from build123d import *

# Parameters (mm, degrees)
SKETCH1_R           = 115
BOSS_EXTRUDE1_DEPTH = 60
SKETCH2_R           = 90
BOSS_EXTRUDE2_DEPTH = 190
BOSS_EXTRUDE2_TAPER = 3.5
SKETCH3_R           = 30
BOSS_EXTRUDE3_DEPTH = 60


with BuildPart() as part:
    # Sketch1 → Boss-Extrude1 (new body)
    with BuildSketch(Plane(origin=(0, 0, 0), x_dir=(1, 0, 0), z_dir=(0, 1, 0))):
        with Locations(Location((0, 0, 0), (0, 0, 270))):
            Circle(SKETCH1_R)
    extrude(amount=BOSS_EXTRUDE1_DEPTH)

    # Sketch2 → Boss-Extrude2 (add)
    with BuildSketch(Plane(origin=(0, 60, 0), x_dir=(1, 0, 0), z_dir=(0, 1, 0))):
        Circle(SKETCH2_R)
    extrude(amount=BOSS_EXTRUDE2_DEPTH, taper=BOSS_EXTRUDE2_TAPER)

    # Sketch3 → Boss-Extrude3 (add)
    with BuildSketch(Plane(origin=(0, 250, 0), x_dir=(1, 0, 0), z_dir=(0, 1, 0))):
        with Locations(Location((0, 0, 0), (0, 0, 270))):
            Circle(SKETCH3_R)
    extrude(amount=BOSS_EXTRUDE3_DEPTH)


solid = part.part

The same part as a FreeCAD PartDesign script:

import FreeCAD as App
import Part
import Sketcher
from FreeCAD import Vector
Q = App.Units.Quantity

doc = App.newDocument("Part")
body = doc.addObject("PartDesign::Body", "Body")

# Sketch on XZ plane
sketch1 = body.newObject("Sketcher::SketchObject", "Sketch")
sketch1.AttachmentSupport = (doc.getObject("XZ_Plane"), [""])
sketch1.MapMode = "FlatFace"
sketch1.addGeometry(Part.Circle(Vector(0, 0, 0), Vector(0, 0, 1), 115), False)
sketch1.addConstraint(Sketcher.Constraint("Coincident", 0, 3, -1, 1))
sketch1.addConstraint(Sketcher.Constraint("Diameter", 0, Q("230 mm")))
pad1 = body.newObject("PartDesign::Pad", "Pad")
pad1.Profile = sketch1
pad1.Length = 60
pad1.Reversed = True

# Sketch on XZ plane
sketch2 = body.newObject("Sketcher::SketchObject", "Sketch001")
sketch2.AttachmentSupport = (doc.getObject("XZ_Plane"), [""])
sketch2.MapMode = "FlatFace"
sketch2.AttachmentOffset = App.Placement(Vector(0, 0, -60), App.Rotation())
sketch2.addGeometry(Part.Circle(Vector(0, 0, 0), Vector(0, 0, 1), 90), False)
sketch2.addConstraint(Sketcher.Constraint("Coincident", 0, 3, -1, 1))
sketch2.addConstraint(Sketcher.Constraint("Diameter", 0, Q("180 mm")))
pad2 = body.newObject("PartDesign::Pad", "Pad001")
pad2.Profile = sketch2
pad2.Length = 190
pad2.Reversed = True
pad2.TaperAngle = -3.5

# Sketch on XZ plane
sketch3 = body.newObject("Sketcher::SketchObject", "Sketch002")
sketch3.AttachmentSupport = (doc.getObject("XZ_Plane"), [""])
sketch3.MapMode = "FlatFace"
sketch3.AttachmentOffset = App.Placement(Vector(0, 0, -250), App.Rotation())
sketch3.addGeometry(Part.Circle(Vector(0, 0, 0), Vector(0, 0, 1), 30), False)
sketch3.addConstraint(Sketcher.Constraint("Coincident", 0, 3, -1, 1))
sketch3.addConstraint(Sketcher.Constraint("Diameter", 0, Q("60 mm")))
pad3 = body.newObject("PartDesign::Pad", "Pad002")
pad3.Profile = sketch3
pad3.Length = 60
pad3.Reversed = True

doc.recompute()
